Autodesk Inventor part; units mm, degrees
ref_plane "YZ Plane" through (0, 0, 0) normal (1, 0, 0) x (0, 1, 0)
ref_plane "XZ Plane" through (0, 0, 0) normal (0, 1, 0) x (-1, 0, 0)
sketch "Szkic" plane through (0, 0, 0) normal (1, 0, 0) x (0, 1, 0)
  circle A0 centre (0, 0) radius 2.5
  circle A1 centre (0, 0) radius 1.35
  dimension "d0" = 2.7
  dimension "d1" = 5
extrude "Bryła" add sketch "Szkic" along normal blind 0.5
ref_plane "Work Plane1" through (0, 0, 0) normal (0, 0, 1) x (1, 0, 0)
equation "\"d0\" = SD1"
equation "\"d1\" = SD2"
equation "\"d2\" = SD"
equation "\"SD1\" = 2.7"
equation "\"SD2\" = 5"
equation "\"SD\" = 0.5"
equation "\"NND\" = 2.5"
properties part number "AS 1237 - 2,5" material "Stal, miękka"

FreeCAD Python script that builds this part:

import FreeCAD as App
import Part
import Sketcher
from FreeCAD import Vector
Q = App.Units.Quantity

doc = App.newDocument("Part")
body = doc.addObject("PartDesign::Body", "Body")

# Sketch on YZ plane
sketch1 = body.newObject("Sketcher::SketchObject", "Sketch")
sketch1.AttachmentSupport = (doc.getObject("YZ_Plane"), [""])
sketch1.MapMode = "FlatFace"
sketch1.addGeometry(Part.Circle(Vector(0, 0, 0), Vector(0, 0, 1), 2.5), False)
sketch1.addGeometry(Part.Circle(Vector(0, 0, 0), Vector(0, 0, 1), 1.4), False)
sketch1.addConstraint(Sketcher.Constraint("Coincident", 0, 3, -1, 1))
sketch1.addConstraint(Sketcher.Constraint("Coincident", 1, 3, -1, 1))
sketch1.addConstraint(Sketcher.Constraint("Diameter", 0, Q("5 mm")))
sketch1.addConstraint(Sketcher.Constraint("Diameter", 1, Q("2.7 mm")))
pad1 = body.newObject("PartDesign::Pad", "Pad")
pad1.Profile = sketch1
pad1.Length = 0.5

doc.recompute()
